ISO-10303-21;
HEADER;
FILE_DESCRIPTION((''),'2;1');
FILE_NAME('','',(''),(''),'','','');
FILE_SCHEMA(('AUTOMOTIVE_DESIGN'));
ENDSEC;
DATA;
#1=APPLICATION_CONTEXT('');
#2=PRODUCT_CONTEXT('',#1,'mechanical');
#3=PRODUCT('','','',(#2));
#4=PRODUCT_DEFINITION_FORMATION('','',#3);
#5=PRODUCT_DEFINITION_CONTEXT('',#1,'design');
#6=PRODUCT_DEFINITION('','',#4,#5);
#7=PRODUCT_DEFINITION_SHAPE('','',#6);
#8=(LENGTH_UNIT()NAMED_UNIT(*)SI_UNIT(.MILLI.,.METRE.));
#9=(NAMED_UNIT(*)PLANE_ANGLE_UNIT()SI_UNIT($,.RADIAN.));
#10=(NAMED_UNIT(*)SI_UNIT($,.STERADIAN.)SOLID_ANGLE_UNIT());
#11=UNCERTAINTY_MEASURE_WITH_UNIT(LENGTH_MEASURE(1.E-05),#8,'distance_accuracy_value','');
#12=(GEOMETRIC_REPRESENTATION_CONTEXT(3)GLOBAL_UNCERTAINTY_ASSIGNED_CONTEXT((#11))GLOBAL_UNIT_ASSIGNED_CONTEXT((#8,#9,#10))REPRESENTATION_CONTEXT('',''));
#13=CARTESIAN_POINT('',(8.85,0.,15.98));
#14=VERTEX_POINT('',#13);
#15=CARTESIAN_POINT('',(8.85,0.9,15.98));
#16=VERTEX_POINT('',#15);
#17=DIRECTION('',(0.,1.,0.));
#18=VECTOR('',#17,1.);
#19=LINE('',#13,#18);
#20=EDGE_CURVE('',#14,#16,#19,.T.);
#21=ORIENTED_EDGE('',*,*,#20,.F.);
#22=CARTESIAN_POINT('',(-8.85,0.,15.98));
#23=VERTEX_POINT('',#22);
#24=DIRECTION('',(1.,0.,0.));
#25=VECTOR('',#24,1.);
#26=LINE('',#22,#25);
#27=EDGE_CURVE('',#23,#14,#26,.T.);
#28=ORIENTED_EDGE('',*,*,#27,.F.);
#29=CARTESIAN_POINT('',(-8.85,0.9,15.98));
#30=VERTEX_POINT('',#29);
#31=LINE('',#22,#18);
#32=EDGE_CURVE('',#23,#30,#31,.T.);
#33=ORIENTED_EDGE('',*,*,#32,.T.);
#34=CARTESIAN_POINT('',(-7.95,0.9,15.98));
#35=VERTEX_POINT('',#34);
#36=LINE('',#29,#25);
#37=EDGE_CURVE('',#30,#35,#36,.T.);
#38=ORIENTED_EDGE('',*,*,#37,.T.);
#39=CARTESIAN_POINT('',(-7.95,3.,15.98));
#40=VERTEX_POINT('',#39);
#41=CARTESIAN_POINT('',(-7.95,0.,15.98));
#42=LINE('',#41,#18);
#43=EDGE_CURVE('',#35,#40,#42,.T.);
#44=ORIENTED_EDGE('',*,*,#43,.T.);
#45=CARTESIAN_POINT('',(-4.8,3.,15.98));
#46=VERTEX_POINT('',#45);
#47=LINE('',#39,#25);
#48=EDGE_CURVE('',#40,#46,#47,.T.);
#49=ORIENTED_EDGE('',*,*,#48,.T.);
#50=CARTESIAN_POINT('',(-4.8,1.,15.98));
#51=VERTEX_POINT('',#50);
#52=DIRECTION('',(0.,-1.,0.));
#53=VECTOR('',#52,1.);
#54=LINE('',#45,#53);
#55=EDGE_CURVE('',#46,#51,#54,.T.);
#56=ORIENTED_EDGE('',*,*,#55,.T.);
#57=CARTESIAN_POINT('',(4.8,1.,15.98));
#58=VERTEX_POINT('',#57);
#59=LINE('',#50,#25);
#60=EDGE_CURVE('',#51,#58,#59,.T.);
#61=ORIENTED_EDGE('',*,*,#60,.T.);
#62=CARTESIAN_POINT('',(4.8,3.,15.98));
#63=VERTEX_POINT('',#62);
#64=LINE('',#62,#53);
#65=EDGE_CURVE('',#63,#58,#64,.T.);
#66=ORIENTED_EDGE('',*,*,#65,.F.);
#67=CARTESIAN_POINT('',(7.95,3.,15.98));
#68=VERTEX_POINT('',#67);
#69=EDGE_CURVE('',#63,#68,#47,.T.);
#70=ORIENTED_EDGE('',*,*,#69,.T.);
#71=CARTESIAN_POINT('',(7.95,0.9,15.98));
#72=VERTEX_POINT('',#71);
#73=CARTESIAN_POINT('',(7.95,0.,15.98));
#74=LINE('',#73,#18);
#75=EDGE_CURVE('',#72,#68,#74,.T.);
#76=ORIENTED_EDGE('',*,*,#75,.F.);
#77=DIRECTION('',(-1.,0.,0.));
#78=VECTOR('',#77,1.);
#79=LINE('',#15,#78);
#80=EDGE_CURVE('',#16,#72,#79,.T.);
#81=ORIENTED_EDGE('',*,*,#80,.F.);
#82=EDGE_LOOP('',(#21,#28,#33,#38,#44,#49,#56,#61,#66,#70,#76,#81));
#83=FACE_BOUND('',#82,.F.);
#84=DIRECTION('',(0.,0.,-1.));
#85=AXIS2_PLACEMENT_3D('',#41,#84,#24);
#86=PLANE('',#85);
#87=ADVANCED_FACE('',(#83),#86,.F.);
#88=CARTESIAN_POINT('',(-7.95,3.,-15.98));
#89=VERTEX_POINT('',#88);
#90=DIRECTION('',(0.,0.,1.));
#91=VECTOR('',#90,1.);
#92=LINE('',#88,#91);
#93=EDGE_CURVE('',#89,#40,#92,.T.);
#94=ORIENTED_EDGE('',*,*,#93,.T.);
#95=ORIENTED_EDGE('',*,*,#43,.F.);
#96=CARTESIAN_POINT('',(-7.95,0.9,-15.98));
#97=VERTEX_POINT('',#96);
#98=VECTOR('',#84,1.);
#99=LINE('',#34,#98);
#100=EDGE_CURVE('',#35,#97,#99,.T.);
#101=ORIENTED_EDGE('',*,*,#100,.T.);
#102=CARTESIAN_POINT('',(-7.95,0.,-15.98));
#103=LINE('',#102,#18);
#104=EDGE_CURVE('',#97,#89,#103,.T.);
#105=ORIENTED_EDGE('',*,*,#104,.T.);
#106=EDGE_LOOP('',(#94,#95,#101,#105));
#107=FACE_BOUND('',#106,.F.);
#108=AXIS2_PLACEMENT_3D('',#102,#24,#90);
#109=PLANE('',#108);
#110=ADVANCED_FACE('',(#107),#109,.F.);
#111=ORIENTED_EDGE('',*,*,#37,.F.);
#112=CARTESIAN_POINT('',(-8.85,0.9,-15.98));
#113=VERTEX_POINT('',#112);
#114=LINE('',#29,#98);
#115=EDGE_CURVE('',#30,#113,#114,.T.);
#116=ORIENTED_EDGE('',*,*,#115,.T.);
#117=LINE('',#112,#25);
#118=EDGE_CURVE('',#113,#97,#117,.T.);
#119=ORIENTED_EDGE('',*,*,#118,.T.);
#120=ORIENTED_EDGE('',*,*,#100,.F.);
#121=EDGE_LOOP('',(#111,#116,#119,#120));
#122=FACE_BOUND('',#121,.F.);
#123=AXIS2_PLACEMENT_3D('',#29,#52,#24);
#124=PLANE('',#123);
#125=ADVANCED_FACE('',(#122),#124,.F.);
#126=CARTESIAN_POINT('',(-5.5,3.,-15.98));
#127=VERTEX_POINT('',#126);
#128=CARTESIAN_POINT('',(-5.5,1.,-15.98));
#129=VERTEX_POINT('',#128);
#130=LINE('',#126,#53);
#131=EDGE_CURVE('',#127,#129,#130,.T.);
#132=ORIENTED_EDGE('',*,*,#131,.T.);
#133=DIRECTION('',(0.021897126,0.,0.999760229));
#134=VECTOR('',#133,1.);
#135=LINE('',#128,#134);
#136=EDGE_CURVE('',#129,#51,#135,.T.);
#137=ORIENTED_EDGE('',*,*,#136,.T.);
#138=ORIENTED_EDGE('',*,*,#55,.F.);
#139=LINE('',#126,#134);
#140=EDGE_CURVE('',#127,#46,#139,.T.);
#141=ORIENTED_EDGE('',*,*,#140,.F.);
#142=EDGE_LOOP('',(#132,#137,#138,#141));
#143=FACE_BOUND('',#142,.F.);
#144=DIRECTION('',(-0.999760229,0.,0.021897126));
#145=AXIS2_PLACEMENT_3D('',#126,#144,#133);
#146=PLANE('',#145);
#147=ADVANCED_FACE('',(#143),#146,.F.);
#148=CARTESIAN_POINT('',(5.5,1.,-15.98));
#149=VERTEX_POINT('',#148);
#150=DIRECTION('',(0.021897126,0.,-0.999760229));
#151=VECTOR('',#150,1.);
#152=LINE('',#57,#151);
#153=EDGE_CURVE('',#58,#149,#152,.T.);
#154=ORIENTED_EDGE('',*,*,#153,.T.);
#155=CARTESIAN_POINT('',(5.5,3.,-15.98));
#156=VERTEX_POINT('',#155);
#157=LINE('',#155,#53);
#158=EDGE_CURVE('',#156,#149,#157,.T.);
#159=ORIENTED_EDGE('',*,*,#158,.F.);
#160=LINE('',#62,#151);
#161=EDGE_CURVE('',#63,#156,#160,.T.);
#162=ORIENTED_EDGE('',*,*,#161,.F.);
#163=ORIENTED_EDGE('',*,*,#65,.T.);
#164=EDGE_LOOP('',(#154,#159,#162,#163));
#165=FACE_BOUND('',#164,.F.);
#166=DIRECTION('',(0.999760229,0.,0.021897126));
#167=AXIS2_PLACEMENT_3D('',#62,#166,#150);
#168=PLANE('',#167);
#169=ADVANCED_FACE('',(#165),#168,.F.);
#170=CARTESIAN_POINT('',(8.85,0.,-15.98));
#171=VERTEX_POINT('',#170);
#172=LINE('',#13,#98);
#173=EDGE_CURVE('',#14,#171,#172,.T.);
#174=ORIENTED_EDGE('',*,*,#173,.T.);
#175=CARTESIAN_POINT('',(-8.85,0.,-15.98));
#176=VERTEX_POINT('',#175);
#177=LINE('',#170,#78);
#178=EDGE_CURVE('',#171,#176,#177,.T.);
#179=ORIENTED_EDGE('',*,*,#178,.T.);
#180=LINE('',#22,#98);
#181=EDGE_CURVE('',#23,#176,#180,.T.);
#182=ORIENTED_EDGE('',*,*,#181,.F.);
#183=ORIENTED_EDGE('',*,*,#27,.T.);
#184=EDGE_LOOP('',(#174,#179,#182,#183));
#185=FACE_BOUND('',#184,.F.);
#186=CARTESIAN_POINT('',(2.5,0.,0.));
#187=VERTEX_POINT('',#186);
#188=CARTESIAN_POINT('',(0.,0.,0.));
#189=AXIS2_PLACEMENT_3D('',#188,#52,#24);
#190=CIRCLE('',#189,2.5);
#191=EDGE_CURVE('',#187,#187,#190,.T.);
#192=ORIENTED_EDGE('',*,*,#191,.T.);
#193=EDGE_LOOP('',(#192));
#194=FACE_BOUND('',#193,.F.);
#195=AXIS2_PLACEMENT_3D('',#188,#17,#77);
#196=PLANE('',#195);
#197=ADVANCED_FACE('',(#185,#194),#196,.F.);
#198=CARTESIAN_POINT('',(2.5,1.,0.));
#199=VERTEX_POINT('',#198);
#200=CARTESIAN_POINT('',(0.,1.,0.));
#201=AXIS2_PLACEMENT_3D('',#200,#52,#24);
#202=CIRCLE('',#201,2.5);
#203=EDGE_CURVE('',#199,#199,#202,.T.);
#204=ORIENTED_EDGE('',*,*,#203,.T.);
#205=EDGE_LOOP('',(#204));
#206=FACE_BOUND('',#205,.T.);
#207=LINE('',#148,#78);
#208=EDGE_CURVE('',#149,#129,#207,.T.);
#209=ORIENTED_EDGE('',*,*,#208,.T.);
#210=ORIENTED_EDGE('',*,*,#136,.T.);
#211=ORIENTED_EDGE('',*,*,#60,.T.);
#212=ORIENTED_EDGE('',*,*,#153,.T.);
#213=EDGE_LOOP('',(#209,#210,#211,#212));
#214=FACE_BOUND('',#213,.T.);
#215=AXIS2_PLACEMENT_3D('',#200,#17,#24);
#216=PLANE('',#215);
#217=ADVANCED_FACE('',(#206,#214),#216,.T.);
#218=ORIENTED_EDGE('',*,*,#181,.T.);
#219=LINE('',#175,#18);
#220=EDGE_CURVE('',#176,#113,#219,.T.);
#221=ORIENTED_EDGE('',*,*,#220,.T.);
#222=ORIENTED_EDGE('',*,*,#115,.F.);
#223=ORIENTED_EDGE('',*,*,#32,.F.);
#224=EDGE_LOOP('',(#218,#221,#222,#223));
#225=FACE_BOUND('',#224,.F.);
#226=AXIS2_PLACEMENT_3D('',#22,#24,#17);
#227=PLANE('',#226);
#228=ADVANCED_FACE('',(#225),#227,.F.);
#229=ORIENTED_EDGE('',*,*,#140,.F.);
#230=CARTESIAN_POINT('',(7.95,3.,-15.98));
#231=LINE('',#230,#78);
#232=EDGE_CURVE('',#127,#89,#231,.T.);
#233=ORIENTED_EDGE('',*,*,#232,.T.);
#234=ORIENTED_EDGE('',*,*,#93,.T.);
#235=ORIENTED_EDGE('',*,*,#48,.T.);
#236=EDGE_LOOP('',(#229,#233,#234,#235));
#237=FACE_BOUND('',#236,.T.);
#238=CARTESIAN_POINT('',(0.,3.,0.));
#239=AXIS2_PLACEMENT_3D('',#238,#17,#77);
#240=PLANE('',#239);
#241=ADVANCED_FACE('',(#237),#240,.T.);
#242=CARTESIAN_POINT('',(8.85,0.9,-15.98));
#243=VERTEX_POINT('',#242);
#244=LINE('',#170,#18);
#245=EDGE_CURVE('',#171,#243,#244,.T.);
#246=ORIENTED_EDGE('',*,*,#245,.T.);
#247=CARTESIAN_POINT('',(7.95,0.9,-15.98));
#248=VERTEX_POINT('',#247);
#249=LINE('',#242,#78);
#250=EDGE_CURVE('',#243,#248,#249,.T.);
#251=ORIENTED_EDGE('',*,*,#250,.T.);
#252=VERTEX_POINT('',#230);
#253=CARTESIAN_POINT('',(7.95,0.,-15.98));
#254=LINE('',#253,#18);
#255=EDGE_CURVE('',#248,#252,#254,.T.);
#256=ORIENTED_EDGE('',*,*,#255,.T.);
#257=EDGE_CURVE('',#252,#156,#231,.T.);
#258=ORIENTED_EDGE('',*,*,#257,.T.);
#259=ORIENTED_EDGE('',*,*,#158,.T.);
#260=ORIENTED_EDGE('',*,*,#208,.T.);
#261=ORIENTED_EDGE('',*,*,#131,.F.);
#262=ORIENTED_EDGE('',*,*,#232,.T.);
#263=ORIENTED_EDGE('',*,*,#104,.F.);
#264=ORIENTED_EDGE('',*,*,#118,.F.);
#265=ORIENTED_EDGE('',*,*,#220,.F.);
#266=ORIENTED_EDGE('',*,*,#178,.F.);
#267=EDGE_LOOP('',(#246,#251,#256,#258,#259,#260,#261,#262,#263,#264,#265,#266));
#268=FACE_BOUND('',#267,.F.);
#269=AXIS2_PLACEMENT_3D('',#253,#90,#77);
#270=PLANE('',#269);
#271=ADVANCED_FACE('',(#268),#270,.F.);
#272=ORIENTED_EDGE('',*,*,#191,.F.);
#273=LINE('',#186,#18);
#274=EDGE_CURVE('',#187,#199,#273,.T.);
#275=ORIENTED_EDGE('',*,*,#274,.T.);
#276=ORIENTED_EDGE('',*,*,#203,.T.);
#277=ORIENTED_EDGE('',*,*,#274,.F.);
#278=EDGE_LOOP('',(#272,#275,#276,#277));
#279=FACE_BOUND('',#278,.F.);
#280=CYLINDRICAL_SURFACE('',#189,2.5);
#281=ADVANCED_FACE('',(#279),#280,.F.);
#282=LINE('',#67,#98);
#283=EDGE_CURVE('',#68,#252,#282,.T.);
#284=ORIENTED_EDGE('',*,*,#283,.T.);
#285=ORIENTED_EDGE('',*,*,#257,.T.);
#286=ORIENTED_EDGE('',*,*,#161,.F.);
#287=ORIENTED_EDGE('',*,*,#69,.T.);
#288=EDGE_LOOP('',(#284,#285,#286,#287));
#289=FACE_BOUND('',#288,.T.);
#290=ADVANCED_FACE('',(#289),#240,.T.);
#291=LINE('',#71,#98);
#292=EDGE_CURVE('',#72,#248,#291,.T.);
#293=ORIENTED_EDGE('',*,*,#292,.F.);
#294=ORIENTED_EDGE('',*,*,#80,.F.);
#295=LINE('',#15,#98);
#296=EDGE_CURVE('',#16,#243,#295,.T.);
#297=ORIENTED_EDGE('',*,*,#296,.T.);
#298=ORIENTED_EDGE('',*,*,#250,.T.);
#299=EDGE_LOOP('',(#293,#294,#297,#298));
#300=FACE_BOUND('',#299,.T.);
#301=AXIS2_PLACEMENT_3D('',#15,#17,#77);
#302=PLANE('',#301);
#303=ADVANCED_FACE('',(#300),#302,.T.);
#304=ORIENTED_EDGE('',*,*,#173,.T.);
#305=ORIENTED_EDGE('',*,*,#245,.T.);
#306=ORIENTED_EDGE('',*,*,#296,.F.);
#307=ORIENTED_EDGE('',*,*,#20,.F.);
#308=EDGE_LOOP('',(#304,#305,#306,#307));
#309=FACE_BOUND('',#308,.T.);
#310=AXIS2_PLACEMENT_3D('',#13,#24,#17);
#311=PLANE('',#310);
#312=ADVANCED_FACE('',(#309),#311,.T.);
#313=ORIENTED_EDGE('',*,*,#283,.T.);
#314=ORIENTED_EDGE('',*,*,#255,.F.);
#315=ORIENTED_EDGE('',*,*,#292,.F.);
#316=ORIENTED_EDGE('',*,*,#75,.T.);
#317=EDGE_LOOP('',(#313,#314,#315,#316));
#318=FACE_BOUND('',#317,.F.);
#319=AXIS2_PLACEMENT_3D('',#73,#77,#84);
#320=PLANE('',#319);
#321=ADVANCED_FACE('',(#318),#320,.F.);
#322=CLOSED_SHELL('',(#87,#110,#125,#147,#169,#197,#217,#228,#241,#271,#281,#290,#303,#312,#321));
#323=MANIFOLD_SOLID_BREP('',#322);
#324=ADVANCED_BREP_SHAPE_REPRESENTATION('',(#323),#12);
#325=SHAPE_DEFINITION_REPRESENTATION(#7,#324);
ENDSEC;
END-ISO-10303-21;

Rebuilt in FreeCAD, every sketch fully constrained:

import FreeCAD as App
import Part
import Sketcher

doc = App.newDocument("Part")
body = doc.addObject("PartDesign::Body", "Body")

# Sketch on XZ plane
sketch1 = body.newObject("Sketcher::SketchObject", "Sketch")
sketch1.AttachmentSupport = (doc.getObject("XZ_Plane"), [""])
sketch1.MapMode = "FlatFace"
sketch1.addGeometry([
    Part.LineSegment(App.Vector(-7.95, -15.98, 0), App.Vector(-7.95, 15.98, 0)),
    Part.LineSegment(App.Vector(-7.95, 15.98, 0), App.Vector(7.95, 15.98, 0)),
    Part.LineSegment(App.Vector(7.95, 15.98, 0), App.Vector(7.95, -15.98, 0)),
    Part.LineSegment(App.Vector(7.95, -15.98, 0), App.Vector(-7.95, -15.98, 0)),
], False)
sketch1.addConstraint([
    Sketcher.Constraint("Coincident", 0, 2, 1, 1),
    Sketcher.Constraint("Coincident", 1, 2, 2, 1),
    Sketcher.Constraint("Coincident", 2, 2, 3, 1),
    Sketcher.Constraint("Coincident", 3, 2, 0, 1),
    Sketcher.Constraint("Vertical", 0),
    Sketcher.Constraint("Horizontal", 1),
    Sketcher.Constraint("Vertical", 2),
    Sketcher.Constraint("Horizontal", 3),
    Sketcher.Constraint("Symmetric", 0, 2, 2, 2, -1, 1),
    Sketcher.Constraint("DistanceX", 1, 1, 1, 2, 15.9),
    Sketcher.Constraint("DistanceY", 0, 1, 0, 2, 31.96),
])
pad1 = body.newObject("PartDesign::Pad", "Pad")
pad1.Profile = sketch1
pad1.Length = 3
pad1.Reversed = True

# Sketch on XZ plane
sketch2 = body.newObject("Sketcher::SketchObject", "Sketch001")
sketch2.AttachmentSupport = (doc.getObject("XZ_Plane"), [""])
sketch2.MapMode = "FlatFace"
sketch2.AttachmentOffset = App.Placement(App.Vector(0, 0, -3), App.Rotation())
sketch2.addGeometry([
    Part.LineSegment(App.Vector(-5.5, -15.98, 0), App.Vector(-4.8, 15.98, 0)),
    Part.LineSegment(App.Vector(-4.8, 15.98, 0), App.Vector(4.8, 15.98, 0)),
    Part.LineSegment(App.Vector(4.8, 15.98, 0), App.Vector(5.5, -15.98, 0)),
    Part.LineSegment(App.Vector(5.5, -15.98, 0), App.Vector(-5.5, -15.98, 0)),
], False)
sketch2.addConstraint([
    Sketcher.Constraint("Coincident", 0, 2, 1, 1),
    Sketcher.Constraint("Coincident", 1, 2, 2, 1),
    Sketcher.Constraint("Coincident", 2, 2, 3, 1),
    Sketcher.Constraint("Coincident", 3, 2, 0, 1),
    Sketcher.Constraint("Horizontal", 1),
    Sketcher.Constraint("Horizontal", 3),
    Sketcher.Constraint("Equal", 0, 2),
    Sketcher.Constraint("DistanceX", 3, 2, 3, 1, 11.0),
    Sketcher.Constraint("DistanceX", 1, 1, 1, 2, 9.6),
    Sketcher.Constraint("DistanceX", 0, 2, -1, 1, 4.8),
    Sketcher.Constraint("DistanceY", -1, 1, 0, 2, 15.98),
    Sketcher.Constraint("DistanceY", 2, 2, -1, 1, 15.98),
])
pocket1 = body.newObject("PartDesign::Pocket", "Pocket")
pocket1.Profile = sketch2
pocket1.Length = 2
pocket1.Reversed = True

# Sketch on XZ plane
sketch3 = body.newObject("Sketcher::SketchObject", "Sketch002")
sketch3.AttachmentSupport = (doc.getObject("XZ_Plane"), [""])
sketch3.MapMode = "FlatFace"
sketch3.addGeometry(Part.Circle(App.Vector(0, 0, 0), App.Vector(0, 0, 1), 2.5), False)
sketch3.addConstraint([
    Sketcher.Constraint("Coincident", 0, 3, -1, 1),
    Sketcher.Constraint("Diameter", 0, 5.0),
])
pocket2 = body.newObject("PartDesign::Pocket", "Pocket001")
pocket2.Profile = sketch3
pocket2.Type = "UpToFirst"

# Sketch on XY plane
sketch4 = body.newObject("Sketcher::SketchObject", "Sketch003")
sketch4.AttachmentSupport = (doc.getObject("XY_Plane"), [""])
sketch4.MapMode = "FlatFace"
sketch4.AttachmentOffset = App.Placement(App.Vector(0, 0, 15.98), App.Rotation())
sketch4.addGeometry([
    Part.LineSegment(App.Vector(-8.85, 0, 0), App.Vector(-7.95, 0, 0)),  # 0
    Part.LineSegment(App.Vector(-7.95, 0, 0), App.Vector(-7.95, 0.9, 0)),  # 1
    Part.LineSegment(App.Vector(-7.95, 0.9, 0), App.Vector(-8.85, 0.9, 0)),  # 2
    Part.LineSegment(App.Vector(-8.85, 0.9, 0), App.Vector(-8.85, 0, 0)),  # 3
    Part.LineSegment(App.Vector(7.95, 0.9, 0), App.Vector(7.95, 0, 0)),  # 4
    Part.LineSegment(App.Vector(7.95, 0, 0), App.Vector(8.85, 0, 0)),  # 5
    Part.LineSegment(App.Vector(8.85, 0, 0), App.Vector(8.85, 0.9, 0)),  # 6
    Part.LineSegment(App.Vector(8.85, 0.9, 0), App.Vector(7.95, 0.9, 0)),  # 7
], False)
sketch4.addConstraint([
    Sketcher.Constraint("Coincident", 0, 2, 1, 1),
    Sketcher.Constraint("Coincident", 1, 2, 2, 1),
    Sketcher.Constraint("Coincident", 2, 2, 3, 1),
    Sketcher.Constraint("Coincident", 3, 2, 0, 1),
    Sketcher.Constraint("Coincident", 4, 2, 5, 1),
    Sketcher.Constraint("Coincident", 5, 2, 6, 1),
    Sketcher.Constraint("Coincident", 6, 2, 7, 1),
    Sketcher.Constraint("Coincident", 7, 2, 4, 1),
    Sketcher.Constraint("Horizontal", 0),
    Sketcher.Constraint("Vertical", 1),
    Sketcher.Constraint("Horizontal", 2),
    Sketcher.Constraint("Vertical", 3),
    Sketcher.Constraint("Vertical", 4),
    Sketcher.Constraint("Horizontal", 5),
    Sketcher.Constraint("Vertical", 6),
    Sketcher.Constraint("Horizontal", 7),
    Sketcher.Constraint("Symmetric", 0, 2, 4, 2, -1, 1),
    Sketcher.Constraint("Symmetric", 3, 2, 5, 2, -2),
    Sketcher.Constraint("Horizontal", 2, 2, 6, 2),
    Sketcher.Constraint("Equal", 7, 1),
    Sketcher.Constraint("DistanceX", 0, 1, 0, 2, 0.9),
    Sketcher.Constraint("DistanceX", 0, 2, 4, 2, 15.9),
])
pad2 = body.newObject("PartDesign::Pad", "Pad001")
pad2.Profile = sketch4
pad2.Length = 31.96
pad2.Reversed = True

doc.recompute()
